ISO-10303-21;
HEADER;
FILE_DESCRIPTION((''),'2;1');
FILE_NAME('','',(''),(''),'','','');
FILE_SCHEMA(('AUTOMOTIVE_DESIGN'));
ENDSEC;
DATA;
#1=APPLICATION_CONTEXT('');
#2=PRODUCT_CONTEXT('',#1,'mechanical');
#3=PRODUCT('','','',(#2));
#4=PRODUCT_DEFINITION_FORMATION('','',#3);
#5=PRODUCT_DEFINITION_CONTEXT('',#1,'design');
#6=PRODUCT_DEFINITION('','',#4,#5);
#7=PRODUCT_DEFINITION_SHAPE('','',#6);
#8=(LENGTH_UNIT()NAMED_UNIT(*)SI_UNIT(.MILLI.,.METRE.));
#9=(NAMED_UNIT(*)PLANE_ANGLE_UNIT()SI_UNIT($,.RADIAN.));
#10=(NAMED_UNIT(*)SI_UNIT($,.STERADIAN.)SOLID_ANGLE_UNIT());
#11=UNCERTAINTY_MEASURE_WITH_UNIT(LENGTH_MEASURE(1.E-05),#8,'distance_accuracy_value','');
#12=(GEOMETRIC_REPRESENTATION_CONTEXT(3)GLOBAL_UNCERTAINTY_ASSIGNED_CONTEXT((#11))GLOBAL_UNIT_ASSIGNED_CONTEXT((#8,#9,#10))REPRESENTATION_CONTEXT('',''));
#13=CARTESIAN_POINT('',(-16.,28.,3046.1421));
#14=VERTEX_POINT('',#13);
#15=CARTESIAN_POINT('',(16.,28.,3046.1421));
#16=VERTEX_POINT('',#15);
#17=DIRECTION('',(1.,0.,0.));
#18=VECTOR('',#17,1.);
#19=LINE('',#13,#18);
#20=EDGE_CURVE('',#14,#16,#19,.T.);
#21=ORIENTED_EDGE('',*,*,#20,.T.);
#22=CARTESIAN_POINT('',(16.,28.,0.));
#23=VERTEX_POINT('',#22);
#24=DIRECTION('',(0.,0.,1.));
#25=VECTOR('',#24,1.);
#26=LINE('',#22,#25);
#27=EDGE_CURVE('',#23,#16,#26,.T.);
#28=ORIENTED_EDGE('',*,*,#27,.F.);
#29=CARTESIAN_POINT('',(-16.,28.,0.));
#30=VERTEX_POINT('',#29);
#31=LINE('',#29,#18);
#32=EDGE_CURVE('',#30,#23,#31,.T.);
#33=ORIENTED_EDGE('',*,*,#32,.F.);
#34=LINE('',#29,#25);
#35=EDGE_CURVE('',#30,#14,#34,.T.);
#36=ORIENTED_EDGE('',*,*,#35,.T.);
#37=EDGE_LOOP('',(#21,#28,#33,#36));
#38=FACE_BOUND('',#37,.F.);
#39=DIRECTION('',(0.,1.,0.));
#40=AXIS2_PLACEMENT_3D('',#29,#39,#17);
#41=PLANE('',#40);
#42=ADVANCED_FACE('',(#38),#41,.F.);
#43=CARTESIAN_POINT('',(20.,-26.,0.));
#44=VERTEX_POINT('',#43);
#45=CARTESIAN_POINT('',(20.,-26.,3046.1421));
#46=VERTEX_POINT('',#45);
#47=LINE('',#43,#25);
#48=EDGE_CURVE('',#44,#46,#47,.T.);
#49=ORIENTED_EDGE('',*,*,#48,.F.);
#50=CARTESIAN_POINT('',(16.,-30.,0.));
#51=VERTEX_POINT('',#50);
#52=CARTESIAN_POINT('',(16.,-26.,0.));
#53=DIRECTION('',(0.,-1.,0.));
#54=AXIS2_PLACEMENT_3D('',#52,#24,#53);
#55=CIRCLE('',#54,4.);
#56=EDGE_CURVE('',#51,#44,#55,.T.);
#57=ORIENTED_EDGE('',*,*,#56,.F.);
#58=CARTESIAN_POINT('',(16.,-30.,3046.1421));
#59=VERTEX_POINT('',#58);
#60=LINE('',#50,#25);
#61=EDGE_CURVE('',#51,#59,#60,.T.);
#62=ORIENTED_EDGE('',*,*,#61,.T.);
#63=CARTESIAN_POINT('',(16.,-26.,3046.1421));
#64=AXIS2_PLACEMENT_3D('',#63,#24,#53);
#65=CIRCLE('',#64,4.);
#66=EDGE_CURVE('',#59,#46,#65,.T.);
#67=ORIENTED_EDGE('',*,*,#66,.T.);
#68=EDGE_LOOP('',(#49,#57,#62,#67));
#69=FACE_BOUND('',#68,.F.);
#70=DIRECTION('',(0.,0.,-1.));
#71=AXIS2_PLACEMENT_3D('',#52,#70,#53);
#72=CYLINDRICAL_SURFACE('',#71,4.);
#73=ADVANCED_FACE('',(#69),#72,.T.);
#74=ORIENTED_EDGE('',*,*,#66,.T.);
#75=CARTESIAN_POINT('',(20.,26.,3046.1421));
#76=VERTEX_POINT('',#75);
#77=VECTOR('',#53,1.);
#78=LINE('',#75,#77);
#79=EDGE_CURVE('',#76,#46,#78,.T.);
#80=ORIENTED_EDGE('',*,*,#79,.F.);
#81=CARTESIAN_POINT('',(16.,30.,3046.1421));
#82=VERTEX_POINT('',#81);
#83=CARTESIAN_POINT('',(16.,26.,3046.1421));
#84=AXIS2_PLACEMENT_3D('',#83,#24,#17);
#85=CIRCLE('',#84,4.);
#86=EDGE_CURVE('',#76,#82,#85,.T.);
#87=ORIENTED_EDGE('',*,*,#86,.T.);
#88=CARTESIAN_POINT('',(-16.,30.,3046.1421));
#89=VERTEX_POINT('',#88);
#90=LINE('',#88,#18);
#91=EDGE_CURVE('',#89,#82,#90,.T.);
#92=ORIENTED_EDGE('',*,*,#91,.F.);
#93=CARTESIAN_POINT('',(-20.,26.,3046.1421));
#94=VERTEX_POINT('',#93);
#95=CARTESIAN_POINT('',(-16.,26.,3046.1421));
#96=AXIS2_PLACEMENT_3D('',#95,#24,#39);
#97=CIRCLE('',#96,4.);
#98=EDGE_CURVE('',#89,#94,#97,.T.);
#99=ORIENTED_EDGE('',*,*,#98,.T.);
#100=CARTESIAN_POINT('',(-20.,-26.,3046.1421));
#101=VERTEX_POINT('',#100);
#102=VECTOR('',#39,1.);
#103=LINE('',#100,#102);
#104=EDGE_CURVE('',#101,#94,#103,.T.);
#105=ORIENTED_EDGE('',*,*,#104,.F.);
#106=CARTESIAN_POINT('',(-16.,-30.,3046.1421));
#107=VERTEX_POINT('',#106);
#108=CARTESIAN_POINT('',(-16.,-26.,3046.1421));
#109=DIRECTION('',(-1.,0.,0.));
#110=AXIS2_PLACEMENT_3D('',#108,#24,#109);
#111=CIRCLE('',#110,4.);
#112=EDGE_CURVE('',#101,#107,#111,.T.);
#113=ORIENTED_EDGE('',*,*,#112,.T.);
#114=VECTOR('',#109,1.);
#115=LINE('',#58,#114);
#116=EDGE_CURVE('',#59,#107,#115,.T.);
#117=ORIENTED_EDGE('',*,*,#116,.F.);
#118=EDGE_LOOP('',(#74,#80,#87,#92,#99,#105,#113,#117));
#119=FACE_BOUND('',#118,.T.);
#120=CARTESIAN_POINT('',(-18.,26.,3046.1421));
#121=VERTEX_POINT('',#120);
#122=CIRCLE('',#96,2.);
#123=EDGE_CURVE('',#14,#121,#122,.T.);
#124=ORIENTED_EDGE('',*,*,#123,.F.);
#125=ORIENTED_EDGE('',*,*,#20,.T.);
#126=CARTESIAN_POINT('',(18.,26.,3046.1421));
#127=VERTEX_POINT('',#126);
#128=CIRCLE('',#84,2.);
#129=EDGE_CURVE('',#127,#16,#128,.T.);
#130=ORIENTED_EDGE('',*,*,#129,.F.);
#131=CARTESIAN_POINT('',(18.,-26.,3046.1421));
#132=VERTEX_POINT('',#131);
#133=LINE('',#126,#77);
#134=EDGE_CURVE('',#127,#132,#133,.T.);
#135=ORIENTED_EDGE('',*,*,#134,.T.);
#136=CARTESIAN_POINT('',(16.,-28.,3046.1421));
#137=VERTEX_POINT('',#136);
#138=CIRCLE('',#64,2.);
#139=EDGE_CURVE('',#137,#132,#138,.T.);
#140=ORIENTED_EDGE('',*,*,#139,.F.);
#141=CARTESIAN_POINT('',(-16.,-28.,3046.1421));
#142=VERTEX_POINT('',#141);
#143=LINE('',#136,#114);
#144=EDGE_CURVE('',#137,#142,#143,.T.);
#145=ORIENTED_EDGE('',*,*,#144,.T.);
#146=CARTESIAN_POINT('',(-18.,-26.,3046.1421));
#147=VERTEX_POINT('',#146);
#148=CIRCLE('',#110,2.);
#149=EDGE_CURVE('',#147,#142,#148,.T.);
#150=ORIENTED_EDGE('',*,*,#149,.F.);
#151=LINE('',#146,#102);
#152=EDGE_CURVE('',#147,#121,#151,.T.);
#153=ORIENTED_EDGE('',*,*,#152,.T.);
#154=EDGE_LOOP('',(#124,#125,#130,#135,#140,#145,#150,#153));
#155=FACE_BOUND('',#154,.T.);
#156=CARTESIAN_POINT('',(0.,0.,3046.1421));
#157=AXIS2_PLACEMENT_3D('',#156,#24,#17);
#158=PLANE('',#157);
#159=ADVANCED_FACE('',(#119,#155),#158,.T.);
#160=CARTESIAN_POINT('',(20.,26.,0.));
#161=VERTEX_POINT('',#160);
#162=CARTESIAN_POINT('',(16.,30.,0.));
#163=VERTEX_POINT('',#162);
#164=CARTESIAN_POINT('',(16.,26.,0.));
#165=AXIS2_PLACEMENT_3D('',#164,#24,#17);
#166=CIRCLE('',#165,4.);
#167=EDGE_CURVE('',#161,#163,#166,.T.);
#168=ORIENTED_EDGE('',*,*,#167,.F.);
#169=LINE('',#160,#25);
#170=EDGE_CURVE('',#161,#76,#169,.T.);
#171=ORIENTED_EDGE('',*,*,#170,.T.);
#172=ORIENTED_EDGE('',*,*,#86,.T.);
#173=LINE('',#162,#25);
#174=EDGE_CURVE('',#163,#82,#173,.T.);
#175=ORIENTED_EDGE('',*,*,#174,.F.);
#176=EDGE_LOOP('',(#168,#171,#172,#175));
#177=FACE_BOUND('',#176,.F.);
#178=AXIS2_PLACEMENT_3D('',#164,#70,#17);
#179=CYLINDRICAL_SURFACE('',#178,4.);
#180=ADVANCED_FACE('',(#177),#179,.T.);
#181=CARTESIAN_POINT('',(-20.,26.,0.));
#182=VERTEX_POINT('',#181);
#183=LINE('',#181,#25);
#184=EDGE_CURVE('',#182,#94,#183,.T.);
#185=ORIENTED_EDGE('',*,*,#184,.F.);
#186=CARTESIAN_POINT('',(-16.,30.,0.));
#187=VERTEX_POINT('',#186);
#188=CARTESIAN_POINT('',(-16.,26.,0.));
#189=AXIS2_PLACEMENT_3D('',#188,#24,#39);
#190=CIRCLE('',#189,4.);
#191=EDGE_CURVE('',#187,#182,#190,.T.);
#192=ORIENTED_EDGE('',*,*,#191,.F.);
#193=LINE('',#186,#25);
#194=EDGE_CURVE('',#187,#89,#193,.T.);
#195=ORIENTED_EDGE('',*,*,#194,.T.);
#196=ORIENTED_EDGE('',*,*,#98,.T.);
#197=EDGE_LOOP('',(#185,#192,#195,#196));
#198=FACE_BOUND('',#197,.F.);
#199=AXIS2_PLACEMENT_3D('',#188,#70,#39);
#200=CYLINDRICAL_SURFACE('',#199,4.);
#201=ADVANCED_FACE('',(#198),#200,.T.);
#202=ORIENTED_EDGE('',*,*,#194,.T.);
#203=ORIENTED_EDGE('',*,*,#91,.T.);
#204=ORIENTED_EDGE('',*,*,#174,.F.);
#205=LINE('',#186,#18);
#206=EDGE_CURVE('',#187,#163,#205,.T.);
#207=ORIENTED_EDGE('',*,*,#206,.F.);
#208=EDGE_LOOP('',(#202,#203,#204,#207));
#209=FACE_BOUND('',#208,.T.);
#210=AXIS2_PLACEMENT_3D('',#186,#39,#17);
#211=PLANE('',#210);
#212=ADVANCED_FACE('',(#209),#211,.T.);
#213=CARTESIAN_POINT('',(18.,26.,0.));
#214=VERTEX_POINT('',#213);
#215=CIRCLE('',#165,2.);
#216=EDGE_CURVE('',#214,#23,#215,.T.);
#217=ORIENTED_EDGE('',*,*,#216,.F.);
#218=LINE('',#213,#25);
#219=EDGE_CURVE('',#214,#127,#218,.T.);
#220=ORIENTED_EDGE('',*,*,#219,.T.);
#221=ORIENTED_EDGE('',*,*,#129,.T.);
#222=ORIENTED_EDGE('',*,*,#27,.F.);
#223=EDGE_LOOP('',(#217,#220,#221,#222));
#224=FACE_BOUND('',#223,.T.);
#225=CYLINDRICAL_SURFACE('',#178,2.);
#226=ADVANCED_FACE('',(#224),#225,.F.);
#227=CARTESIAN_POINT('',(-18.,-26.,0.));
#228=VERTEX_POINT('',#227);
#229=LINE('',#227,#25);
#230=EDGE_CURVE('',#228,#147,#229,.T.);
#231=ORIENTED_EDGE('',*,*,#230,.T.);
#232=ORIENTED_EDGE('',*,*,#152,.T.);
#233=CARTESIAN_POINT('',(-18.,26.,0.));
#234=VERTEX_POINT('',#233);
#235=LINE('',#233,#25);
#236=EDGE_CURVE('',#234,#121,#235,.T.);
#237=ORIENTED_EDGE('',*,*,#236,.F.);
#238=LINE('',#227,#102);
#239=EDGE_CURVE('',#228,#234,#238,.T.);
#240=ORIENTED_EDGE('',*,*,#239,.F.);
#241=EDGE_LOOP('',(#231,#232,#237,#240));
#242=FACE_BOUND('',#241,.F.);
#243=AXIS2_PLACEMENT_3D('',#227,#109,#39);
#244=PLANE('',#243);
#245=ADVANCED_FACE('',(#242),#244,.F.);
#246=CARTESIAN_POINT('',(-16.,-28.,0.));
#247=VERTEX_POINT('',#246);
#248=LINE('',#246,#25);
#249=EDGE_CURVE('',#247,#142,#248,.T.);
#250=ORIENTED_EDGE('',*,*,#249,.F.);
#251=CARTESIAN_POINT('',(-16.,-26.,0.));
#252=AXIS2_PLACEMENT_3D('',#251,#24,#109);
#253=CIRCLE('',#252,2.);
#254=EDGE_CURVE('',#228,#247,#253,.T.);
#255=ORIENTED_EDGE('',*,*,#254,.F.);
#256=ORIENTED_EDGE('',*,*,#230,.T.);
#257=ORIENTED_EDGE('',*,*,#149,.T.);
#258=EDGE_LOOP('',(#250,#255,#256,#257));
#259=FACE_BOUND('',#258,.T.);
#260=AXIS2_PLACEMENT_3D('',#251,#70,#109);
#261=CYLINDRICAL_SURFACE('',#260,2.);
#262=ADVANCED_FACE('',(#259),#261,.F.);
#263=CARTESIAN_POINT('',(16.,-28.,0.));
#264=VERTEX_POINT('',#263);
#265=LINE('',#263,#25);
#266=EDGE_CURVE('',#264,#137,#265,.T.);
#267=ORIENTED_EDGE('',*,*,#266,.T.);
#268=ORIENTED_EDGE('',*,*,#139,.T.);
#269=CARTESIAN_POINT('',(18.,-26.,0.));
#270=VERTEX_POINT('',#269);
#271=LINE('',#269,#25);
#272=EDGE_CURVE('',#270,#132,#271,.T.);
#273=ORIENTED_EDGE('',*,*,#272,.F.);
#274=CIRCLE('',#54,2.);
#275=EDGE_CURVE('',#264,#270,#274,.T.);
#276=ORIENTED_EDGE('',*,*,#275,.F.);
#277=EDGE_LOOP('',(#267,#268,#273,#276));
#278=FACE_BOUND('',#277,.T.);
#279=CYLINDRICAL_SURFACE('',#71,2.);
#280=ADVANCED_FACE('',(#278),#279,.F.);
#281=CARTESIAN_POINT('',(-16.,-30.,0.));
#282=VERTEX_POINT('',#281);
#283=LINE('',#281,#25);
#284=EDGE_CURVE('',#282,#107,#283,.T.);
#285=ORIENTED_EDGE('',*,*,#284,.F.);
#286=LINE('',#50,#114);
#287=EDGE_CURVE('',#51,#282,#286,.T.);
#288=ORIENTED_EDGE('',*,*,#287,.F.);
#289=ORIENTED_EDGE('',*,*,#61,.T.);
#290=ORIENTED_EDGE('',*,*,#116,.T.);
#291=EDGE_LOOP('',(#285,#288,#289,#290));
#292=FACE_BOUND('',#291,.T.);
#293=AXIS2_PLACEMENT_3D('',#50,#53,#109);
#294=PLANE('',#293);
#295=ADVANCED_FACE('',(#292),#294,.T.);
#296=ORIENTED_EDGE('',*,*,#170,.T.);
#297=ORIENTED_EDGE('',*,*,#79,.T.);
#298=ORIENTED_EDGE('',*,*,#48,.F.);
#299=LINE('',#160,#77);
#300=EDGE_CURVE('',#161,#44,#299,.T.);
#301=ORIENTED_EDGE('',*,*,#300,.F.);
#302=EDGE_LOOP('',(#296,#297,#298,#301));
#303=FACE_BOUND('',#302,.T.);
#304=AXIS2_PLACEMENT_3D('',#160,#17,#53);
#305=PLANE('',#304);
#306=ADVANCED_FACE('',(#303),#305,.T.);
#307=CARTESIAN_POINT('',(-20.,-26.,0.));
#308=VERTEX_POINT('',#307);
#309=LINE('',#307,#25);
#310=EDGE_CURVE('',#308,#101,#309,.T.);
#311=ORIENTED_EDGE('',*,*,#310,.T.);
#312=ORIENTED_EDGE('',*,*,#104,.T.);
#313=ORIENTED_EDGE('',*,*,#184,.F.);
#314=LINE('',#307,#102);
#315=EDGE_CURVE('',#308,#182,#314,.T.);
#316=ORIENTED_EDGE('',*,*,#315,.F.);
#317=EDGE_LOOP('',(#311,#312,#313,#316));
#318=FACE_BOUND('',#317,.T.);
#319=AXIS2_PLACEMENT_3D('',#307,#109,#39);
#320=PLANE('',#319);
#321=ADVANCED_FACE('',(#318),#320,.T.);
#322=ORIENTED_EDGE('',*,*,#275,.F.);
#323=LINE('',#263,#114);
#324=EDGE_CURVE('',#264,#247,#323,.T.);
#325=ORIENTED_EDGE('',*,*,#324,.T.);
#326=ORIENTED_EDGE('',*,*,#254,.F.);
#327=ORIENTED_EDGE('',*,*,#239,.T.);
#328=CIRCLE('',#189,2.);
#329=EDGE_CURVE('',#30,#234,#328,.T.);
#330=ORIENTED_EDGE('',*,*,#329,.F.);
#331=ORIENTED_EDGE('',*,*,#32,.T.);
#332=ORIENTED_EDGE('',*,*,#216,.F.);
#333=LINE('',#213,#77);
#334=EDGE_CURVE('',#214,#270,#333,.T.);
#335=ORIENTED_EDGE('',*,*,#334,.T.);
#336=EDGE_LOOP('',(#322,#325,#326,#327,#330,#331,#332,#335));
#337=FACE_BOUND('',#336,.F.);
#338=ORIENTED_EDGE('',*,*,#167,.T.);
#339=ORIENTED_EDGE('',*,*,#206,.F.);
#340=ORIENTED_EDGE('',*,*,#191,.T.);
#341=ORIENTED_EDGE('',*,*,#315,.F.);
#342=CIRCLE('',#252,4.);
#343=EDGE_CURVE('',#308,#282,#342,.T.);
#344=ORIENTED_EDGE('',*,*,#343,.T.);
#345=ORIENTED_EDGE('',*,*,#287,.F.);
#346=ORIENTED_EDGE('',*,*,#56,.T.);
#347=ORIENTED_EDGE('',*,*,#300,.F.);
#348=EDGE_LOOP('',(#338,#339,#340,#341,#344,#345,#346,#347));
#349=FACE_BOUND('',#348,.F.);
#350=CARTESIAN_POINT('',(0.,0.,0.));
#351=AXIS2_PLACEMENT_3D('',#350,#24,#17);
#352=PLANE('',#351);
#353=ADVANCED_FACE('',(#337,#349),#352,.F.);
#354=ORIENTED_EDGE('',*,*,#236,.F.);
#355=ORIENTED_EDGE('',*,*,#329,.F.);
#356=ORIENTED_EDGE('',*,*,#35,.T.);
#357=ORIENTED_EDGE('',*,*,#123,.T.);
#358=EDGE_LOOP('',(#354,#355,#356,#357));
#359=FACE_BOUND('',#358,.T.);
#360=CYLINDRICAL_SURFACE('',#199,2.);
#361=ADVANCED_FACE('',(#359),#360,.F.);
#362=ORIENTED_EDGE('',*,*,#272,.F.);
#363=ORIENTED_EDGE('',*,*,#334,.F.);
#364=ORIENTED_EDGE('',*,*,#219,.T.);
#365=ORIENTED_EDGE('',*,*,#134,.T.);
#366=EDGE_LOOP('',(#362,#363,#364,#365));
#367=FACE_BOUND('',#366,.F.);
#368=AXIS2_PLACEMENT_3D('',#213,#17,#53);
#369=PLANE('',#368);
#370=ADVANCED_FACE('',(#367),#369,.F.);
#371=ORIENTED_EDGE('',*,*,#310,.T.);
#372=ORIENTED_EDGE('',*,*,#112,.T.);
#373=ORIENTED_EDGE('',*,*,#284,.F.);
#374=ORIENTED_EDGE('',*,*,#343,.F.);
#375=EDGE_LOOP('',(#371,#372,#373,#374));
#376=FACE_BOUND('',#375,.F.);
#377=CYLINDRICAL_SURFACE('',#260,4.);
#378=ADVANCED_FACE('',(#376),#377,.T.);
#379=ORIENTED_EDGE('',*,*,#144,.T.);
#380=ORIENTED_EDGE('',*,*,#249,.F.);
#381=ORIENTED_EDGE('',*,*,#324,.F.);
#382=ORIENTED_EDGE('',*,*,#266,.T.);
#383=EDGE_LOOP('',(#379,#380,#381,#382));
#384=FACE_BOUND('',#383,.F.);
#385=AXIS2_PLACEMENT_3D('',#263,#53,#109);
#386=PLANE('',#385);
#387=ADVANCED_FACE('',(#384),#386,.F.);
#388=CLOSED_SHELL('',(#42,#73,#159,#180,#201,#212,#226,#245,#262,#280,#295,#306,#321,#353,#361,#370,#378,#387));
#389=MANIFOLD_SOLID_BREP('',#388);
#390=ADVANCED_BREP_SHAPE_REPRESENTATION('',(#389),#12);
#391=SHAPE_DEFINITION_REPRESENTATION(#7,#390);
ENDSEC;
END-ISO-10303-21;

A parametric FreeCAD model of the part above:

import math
import FreeCAD as App
import Part
import Sketcher
from FreeCAD import Vector
Q = App.Units.Quantity

doc = App.newDocument("Part")
body = doc.addObject("PartDesign::Body", "Body")

# Sketch on XY plane
sketch1 = doc.addObject("Sketcher::SketchObject", "Sketch")
body.addObject(sketch1)
sketch1.AttachmentSupport = (doc.XY_Plane, [""])
sketch1.MapMode = "FlatFace"
sketch1.addGeometry([
    Part.LineSegment(Vector(-20, 26, 0), Vector(-20, -26, 0)),  # 0
    Part.ArcOfCircle(Part.Circle(Vector(-16, -26, 0), Vector(0, 0, 1), 4), math.radians(180), math.radians(270)),  # 1
    Part.LineSegment(Vector(-16, -30, 0), Vector(16, -30, 0)),  # 2
    Part.ArcOfCircle(Part.Circle(Vector(16, -26, 0), Vector(0, 0, 1), 4), math.radians(-90), math.radians(0)),  # 3
    Part.LineSegment(Vector(20, -26, 0), Vector(20, 26, 0)),  # 4
    Part.ArcOfCircle(Part.Circle(Vector(16, 26, 0), Vector(0, 0, 1), 4), math.radians(0), math.radians(90)),  # 5
    Part.LineSegment(Vector(16, 30, 0), Vector(-16, 30, 0)),  # 6
    Part.ArcOfCircle(Part.Circle(Vector(-16, 26, 0), Vector(0, 0, 1), 4), math.radians(90), math.radians(180)),  # 7
    Part.ArcOfCircle(Part.Circle(Vector(-16, 26, 0), Vector(0, 0, 1), 2), math.radians(90), math.radians(180)),  # 8
    Part.LineSegment(Vector(-16, 28, 0), Vector(16, 28, 0)),  # 9
    Part.ArcOfCircle(Part.Circle(Vector(16, 26, 0), Vector(0, 0, 1), 2), math.radians(0), math.radians(90)),  # 10
    Part.LineSegment(Vector(18, 26, 0), Vector(18, -26, 0)),  # 11
    Part.ArcOfCircle(Part.Circle(Vector(16, -26, 0), Vector(0, 0, 1), 2), math.radians(-90), math.radians(0)),  # 12
    Part.LineSegment(Vector(16, -28, 0), Vector(-16, -28, 0)),  # 13
    Part.ArcOfCircle(Part.Circle(Vector(-16, -26, 0), Vector(0, 0, 1), 2), math.radians(180), math.radians(270)),  # 14
    Part.LineSegment(Vector(-18, -26, 0), Vector(-18, 26, 0)),  # 15
], False)
sketch1.addConstraint([
    Sketcher.Constraint("Tangent", 0, 2, 1, 1),
    Sketcher.Constraint("Tangent", 1, 2, 2, 1),
    Sketcher.Constraint("Tangent", 2, 2, 3, 1),
    Sketcher.Constraint("Tangent", 3, 2, 4, 1),
    Sketcher.Constraint("Tangent", 4, 2, 5, 1),
    Sketcher.Constraint("Tangent", 5, 2, 6, 1),
    Sketcher.Constraint("Tangent", 6, 2, 7, 1),
    Sketcher.Constraint("Tangent", 7, 2, 0, 1),
    Sketcher.Constraint("Tangent", 8, 1, 9, 1),
    Sketcher.Constraint("Tangent", 9, 2, 10, 2),
    Sketcher.Constraint("Tangent", 10, 1, 11, 1),
    Sketcher.Constraint("Tangent", 11, 2, 12, 2),
    Sketcher.Constraint("Tangent", 12, 1, 13, 1),
    Sketcher.Constraint("Tangent", 13, 2, 14, 2),
    Sketcher.Constraint("Tangent", 14, 1, 15, 1),
    Sketcher.Constraint("Tangent", 15, 2, 8, 2),
    Sketcher.Constraint("Vertical", 0),
    Sketcher.Constraint("Horizontal", 2),
    Sketcher.Constraint("Vertical", 4),
    Sketcher.Constraint("Horizontal", 6),
    Sketcher.Constraint("Horizontal", 9),
    Sketcher.Constraint("Vertical", 11),
    Sketcher.Constraint("Horizontal", 13),
    Sketcher.Constraint("Vertical", 15),
    Sketcher.Constraint("Coincident", 8, 3, 7, 3),
    Sketcher.Constraint("Coincident", 10, 3, 5, 3),
    Sketcher.Constraint("Coincident", 12, 3, 3, 3),
    Sketcher.Constraint("Equal", 1, 3),
    Sketcher.Constraint("Equal", 3, 5),
    Sketcher.Constraint("Equal", 5, 7),
    Sketcher.Constraint("Equal", 12, 14),
    Sketcher.Constraint("Symmetric", 1, 3, 5, 3, -1, 1),
    Sketcher.Constraint("Radius", 1, Q("4 mm")),
    Sketcher.Constraint("Radius", 8, Q("2 mm")),
    Sketcher.Constraint("DistanceX", 0, 2, -1, 1, Q("20 mm")),
    Sketcher.Constraint("DistanceY", 1, 2, -1, 1, Q("30 mm")),
])
pad1 = doc.addObject("PartDesign::Pad", "Pad")
body.addObject(pad1)
pad1.Profile = sketch1
pad1.Length = 3046.1421

doc.recompute()
